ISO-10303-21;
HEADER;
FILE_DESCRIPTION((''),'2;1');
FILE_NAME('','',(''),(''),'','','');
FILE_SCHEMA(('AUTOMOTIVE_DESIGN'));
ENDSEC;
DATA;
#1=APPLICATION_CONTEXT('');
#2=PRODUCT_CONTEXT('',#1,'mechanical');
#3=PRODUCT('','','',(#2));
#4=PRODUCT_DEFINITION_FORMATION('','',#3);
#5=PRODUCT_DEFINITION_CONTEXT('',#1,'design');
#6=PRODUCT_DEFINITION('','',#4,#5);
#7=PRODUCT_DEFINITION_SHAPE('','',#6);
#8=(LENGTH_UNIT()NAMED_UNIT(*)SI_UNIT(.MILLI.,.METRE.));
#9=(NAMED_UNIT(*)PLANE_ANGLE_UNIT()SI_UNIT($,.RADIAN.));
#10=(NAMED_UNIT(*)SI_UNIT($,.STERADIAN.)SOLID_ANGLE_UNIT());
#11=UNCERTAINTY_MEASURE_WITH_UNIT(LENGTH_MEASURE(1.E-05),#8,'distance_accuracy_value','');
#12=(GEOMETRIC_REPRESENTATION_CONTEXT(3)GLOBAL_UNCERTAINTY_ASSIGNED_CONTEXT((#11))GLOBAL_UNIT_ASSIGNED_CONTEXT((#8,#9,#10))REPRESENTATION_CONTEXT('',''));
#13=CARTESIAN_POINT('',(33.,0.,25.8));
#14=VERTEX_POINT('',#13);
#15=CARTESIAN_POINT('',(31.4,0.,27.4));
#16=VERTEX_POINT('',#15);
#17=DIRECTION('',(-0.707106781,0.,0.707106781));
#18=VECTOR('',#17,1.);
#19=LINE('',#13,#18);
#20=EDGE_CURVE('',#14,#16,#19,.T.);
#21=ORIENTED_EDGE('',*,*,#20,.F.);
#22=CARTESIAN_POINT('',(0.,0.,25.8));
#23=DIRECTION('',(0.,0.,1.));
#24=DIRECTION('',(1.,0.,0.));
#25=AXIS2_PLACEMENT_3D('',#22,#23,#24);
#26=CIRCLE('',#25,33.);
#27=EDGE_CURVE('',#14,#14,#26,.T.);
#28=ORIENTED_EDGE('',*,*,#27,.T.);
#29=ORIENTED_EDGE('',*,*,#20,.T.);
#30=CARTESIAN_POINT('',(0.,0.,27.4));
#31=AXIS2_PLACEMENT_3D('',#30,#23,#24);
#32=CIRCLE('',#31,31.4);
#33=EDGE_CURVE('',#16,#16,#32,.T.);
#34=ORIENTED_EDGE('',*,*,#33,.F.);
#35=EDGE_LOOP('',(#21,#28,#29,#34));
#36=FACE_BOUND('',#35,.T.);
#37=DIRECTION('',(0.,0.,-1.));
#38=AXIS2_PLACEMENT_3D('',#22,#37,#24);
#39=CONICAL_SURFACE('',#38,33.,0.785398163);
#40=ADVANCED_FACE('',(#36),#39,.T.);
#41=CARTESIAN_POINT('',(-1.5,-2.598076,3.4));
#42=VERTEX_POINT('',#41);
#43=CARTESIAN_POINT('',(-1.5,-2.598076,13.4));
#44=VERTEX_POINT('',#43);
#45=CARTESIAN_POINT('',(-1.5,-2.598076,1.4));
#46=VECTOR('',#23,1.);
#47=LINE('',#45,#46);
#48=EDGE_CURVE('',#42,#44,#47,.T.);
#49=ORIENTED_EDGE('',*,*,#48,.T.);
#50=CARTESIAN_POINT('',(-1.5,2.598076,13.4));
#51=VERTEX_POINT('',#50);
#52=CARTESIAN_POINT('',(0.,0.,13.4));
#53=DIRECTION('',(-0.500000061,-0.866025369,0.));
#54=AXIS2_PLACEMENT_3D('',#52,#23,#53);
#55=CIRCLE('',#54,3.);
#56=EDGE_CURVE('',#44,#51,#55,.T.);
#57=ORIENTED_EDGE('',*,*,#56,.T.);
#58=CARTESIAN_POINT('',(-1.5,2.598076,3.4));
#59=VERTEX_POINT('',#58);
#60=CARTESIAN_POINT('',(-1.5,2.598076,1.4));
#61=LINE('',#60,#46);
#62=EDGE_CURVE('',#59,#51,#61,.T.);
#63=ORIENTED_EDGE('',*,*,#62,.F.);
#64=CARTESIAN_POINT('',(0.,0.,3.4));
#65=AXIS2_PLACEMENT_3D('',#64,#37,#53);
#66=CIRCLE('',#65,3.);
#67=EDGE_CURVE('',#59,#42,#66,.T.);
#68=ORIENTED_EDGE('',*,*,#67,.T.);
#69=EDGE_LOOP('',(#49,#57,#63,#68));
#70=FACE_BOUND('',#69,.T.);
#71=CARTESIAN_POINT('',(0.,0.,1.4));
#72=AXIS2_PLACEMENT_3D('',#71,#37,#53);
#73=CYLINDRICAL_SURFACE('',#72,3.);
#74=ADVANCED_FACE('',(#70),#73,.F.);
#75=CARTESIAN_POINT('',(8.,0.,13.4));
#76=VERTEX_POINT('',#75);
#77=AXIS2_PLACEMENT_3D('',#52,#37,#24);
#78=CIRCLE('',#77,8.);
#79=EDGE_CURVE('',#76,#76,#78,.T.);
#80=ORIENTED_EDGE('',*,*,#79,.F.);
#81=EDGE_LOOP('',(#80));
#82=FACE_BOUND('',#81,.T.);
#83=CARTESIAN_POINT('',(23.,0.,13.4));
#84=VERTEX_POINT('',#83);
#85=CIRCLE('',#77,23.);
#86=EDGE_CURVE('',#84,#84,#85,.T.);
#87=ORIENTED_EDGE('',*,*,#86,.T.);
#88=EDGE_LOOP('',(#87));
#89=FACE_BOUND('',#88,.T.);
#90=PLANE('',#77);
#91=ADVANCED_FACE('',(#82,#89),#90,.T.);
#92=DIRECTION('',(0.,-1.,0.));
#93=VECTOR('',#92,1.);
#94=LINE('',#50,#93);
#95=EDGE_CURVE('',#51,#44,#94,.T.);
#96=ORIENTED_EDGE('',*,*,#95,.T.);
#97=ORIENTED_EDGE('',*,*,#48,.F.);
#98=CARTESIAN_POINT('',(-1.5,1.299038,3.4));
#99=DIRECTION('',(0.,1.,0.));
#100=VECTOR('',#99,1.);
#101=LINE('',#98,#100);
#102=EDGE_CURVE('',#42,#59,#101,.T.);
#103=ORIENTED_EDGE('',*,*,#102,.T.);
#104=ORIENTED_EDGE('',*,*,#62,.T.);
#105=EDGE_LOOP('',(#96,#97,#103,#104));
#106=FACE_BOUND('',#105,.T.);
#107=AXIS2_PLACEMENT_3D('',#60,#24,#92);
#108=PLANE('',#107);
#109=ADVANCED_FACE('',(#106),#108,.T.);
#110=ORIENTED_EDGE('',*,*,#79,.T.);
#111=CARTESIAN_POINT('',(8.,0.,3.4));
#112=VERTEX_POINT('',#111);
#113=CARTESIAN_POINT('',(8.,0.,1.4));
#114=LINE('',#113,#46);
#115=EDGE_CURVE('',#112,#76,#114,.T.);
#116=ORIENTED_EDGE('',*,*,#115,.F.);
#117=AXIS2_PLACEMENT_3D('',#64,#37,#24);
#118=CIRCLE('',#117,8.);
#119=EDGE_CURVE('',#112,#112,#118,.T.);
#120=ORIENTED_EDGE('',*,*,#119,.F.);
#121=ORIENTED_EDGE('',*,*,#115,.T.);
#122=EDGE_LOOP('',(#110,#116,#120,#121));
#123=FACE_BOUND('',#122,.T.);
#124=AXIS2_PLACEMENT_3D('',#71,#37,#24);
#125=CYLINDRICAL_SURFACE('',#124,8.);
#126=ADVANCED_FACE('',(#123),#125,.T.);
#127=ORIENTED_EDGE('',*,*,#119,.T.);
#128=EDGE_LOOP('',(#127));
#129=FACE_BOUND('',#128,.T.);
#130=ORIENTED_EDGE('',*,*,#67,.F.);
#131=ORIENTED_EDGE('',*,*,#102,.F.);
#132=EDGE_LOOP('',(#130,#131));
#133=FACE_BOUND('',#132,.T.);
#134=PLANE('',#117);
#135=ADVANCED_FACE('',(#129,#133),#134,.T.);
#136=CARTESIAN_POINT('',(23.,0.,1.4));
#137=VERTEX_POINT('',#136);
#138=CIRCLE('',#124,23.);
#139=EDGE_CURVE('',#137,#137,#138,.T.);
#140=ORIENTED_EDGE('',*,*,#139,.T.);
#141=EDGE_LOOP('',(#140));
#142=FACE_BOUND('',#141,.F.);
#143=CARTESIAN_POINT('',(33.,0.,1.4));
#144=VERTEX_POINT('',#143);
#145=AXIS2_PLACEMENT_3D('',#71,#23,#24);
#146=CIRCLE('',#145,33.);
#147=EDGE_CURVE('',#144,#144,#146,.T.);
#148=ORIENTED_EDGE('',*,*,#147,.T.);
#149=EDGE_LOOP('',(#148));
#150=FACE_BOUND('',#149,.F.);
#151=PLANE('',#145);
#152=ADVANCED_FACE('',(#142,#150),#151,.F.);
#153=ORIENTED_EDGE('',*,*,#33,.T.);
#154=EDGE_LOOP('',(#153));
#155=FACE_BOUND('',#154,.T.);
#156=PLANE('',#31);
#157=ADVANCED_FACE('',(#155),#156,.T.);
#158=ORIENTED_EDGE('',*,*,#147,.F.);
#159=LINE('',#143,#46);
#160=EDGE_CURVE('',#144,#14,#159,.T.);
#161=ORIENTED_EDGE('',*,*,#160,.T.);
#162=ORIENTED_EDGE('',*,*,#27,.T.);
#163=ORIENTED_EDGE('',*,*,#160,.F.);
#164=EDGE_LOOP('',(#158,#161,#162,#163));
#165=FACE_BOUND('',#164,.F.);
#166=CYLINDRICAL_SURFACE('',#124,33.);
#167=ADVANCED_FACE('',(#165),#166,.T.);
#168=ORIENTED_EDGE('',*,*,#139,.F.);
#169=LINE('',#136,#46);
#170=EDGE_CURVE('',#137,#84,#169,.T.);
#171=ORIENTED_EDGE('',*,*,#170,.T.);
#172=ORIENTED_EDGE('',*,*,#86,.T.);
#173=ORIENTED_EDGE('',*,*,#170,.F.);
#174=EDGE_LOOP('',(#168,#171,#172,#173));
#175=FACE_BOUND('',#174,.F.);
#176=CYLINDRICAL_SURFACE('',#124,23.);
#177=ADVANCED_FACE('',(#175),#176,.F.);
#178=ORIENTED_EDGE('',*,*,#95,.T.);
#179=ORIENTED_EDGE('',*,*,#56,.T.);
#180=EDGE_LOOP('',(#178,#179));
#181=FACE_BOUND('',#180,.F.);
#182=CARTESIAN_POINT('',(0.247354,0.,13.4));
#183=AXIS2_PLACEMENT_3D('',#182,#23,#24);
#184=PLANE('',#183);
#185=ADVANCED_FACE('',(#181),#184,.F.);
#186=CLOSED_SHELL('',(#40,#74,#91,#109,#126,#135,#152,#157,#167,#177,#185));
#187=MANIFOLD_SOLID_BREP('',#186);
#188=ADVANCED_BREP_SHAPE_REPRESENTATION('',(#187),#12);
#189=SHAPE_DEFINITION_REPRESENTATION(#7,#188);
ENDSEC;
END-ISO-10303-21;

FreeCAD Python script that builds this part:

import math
import FreeCAD as App
import Part
import Sketcher


def edges_at(feature, points):
    """Names of the edges that pass closest to the given points."""
    edges = feature.Shape.Edges
    near = lambda p: min(range(len(edges)), key=lambda i: edges[i].distToShape(Part.Vertex(*p))[0])
    return sorted({f"Edge{near(p) + 1}" for p in points})

doc = App.newDocument("Part")
body = doc.addObject("PartDesign::Body", "Body")

sketch1 = body.newObject("Sketcher::SketchObject", "Sketch")
sketch1.AttachmentSupport = (doc.getObject("XY_Plane"), [""])
sketch1.MapMode = "FlatFace"
sketch1.addGeometry(Part.Circle(App.Vector(0, 0, 0), App.Vector(0, 0, 1), 33), False)
sketch1.addConstraint(Sketcher.Constraint("Coincident", 0, 3, -1, 1))
sketch1.addConstraint(Sketcher.Constraint("Diameter", 0, 66.0))
pad1 = body.newObject("PartDesign::Pad", "Pad")
pad1.Profile = sketch1
pad1.Length = 26

sketch2 = body.newObject("Sketcher::SketchObject", "Sketch001")
sketch2.AttachmentSupport = (doc.getObject("XY_Plane"), [""])
sketch2.MapMode = "FlatFace"
sketch2.addGeometry(Part.ArcOfCircle(Part.Circle(App.Vector(0, 0, 0), App.Vector(0, 0, 1), 3), math.radians(-120), math.radians(120)), False)
sketch2.addGeometry(Part.LineSegment(App.Vector(-1.5, 2.6, 0), App.Vector(-1.5, -2.6, 0)), False)
sketch2.addConstraint(Sketcher.Constraint("Coincident", 0, 1, 1, 2))
sketch2.addConstraint(Sketcher.Constraint("Coincident", 1, 1, 0, 2))
sketch2.addConstraint(Sketcher.Constraint("Vertical", 1))
sketch2.addConstraint(Sketcher.Constraint("Coincident", 0, 3, -1, 1))
sketch2.addConstraint(Sketcher.Constraint("Radius", 0, 3.0))
sketch2.addConstraint(Sketcher.Constraint("DistanceX", 0, 1, -1, 1, 1.5))
pocket1 = body.newObject("PartDesign::Pocket", "Pocket")
pocket1.Profile = sketch2
pocket1.Length = 12
pocket1.Reversed = True

sketch3 = body.newObject("Sketcher::SketchObject", "Sketch002")
sketch3.AttachmentSupport = (doc.getObject("XY_Plane"), [""])
sketch3.MapMode = "FlatFace"
sketch3.addGeometry(Part.Circle(App.Vector(0, 0, 0), App.Vector(0, 0, 1), 23), False)
sketch3.addGeometry(Part.Circle(App.Vector(0, 0, 0), App.Vector(0, 0, 1), 8), False)
sketch3.addConstraint(Sketcher.Constraint("Coincident", 0, 3, -1, 1))
sketch3.addConstraint(Sketcher.Constraint("Coincident", 1, 3, -1, 1))
sketch3.addConstraint(Sketcher.Constraint("Diameter", 0, 46.0))
sketch3.addConstraint(Sketcher.Constraint("Diameter", 1, 16.0))
pocket2 = body.newObject("PartDesign::Pocket", "Pocket001")
pocket2.Profile = sketch3
pocket2.Length = 12
pocket2.Reversed = True

sketch4 = body.newObject("Sketcher::SketchObject", "Sketch003")
sketch4.AttachmentSupport = (doc.getObject("XY_Plane"), [""])
sketch4.MapMode = "FlatFace"
sketch4.addGeometry(Part.Circle(App.Vector(0, 0, 0), App.Vector(0, 0, 1), 8), False)
sketch4.addConstraint(Sketcher.Constraint("Coincident", 0, 3, -1, 1))
sketch4.addConstraint(Sketcher.Constraint("Diameter", 0, 16.0))
pocket3 = body.newObject("PartDesign::Pocket", "Pocket002")
pocket3.Profile = sketch4
pocket3.Length = 2
pocket3.Reversed = True
doc.recompute()

chamfer = body.newObject("PartDesign::Chamfer", "Chamfer")
chamfer.Base = (pocket3, edges_at(pocket3, [(-33, 0, 26)]))
chamfer.Size = 1.6
body2 = doc.addObject("PartDesign::Body", "Body001")
doc.recompute()

body.Placement = App.Placement(App.Vector(0, 0, 1.4), App.Rotation(App.Vector(0, 0, 1), 0))
boolean = body2.newObject("PartDesign::Boolean", "Boolean")
boolean.Type = "Fuse"
boolean.addObjects([body])

doc.recompute()
